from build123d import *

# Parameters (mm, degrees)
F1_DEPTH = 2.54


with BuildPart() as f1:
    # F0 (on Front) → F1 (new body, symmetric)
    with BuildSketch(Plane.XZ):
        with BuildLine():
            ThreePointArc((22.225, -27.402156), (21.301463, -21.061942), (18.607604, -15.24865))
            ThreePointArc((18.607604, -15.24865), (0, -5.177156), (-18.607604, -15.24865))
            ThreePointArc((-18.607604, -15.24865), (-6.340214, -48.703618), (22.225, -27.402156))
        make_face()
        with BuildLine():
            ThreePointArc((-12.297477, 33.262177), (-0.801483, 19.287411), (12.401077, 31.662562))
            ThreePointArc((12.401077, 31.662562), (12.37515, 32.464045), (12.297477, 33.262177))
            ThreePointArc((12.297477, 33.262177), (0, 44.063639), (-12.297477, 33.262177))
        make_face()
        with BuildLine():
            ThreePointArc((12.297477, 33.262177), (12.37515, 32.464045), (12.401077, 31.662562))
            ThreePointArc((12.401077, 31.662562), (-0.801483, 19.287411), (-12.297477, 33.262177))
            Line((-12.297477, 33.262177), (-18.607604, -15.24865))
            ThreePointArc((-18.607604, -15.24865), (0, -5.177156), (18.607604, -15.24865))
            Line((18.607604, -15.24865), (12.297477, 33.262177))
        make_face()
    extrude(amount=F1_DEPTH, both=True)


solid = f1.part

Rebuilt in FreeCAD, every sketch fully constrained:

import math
import FreeCAD as App
import Part
import Sketcher
from FreeCAD import Vector
Q = App.Units.Quantity

doc = App.newDocument("Part")
params = doc.addObject("Spreadsheet::Sheet", "Params")
for row, (alias, value) in enumerate([
    ("sketch1_radius", "0.8749998 in"),
    ("pad1_length", "0.2 in"),
], start=1):
    params.set(f"A{row}", alias)
    params.set(f"B{row}", "=" + value)
    params.setAlias(f"B{row}", alias)

body = doc.addObject("PartDesign::Body", "Body")

# Sketch on XZ plane
sketch1 = doc.addObject("Sketcher::SketchObject", "Sketch")
body.addObject(sketch1)
sketch1.AttachmentSupport = (doc.XZ_Plane, [""])
sketch1.MapMode = "FlatFace"
sketch1.addGeometry([
    Part.ArcOfCircle(Part.Circle(Vector(0.000005, -27.402154, 0), Vector(0, 0, 1), 22.224995), math.radians(-0.000005), math.radians(33.150455)),  # 0
    Part.LineSegment(Vector(18.607604, -15.24865, 0), Vector(12.297477, 33.262177, 0)),  # 1
    Part.ArcOfCircle(Part.Circle(Vector(0, 31.662562, 0), Vector(0, 0, 1), 12.401077), math.radians(7.411232), math.radians(172.588768)),  # 2
    Part.LineSegment(Vector(-12.297477, 33.262177, 0), Vector(-18.607604, -15.24865, 0)),  # 3
    Part.ArcOfCircle(Part.Circle(Vector(0, -27.402155, 0), Vector(0, 0, 1), 22.225), math.radians(146.849549), math.radians(359.999998)),  # 4
], False)
sketch1.addConstraint([
    Sketcher.Constraint("Coincident", 0, 2, 1, 1),
    Sketcher.Constraint("Tangent", 1, 2, 2, 1),
    Sketcher.Constraint("Tangent", 2, 2, 3, 1),
    Sketcher.Constraint("Coincident", 3, 2, 4, 1),
    Sketcher.Constraint("Tangent", 4, 2, 0, 1),
    Sketcher.Constraint("Symmetric", 1, 2, 2, 2, -2),
    Sketcher.Constraint("PointOnObject", 4, 3, -2),
    Sketcher.Constraint("Horizontal", 0, 2, 3, 2),
    Sketcher.Constraint("Horizontal", 0, 3, 4, 2),
    Sketcher.Constraint("Radius", 0, Q("0.8749998 in")),
    Sketcher.Constraint("Radius", 2, Q("12.401077 mm")),
    Sketcher.Constraint("DistanceX", 0, 3, 0, 2, Q("18.607599 mm")),
    Sketcher.Constraint("DistanceY", 0, 2, -1, 1, Q("15.24865 mm")),
    Sketcher.Constraint("DistanceY", 0, 3, 1, 2, Q("60.664331 mm")),
])
sketch1.setExpression("Constraints[9]", "Params.sketch1_radius")
pad1 = doc.addObject("PartDesign::Pad", "Pad")
body.addObject(pad1)
pad1.Profile = sketch1
pad1.setExpression("Length", "Params.pad1_length")
pad1.Midplane = True

doc.recompute()
